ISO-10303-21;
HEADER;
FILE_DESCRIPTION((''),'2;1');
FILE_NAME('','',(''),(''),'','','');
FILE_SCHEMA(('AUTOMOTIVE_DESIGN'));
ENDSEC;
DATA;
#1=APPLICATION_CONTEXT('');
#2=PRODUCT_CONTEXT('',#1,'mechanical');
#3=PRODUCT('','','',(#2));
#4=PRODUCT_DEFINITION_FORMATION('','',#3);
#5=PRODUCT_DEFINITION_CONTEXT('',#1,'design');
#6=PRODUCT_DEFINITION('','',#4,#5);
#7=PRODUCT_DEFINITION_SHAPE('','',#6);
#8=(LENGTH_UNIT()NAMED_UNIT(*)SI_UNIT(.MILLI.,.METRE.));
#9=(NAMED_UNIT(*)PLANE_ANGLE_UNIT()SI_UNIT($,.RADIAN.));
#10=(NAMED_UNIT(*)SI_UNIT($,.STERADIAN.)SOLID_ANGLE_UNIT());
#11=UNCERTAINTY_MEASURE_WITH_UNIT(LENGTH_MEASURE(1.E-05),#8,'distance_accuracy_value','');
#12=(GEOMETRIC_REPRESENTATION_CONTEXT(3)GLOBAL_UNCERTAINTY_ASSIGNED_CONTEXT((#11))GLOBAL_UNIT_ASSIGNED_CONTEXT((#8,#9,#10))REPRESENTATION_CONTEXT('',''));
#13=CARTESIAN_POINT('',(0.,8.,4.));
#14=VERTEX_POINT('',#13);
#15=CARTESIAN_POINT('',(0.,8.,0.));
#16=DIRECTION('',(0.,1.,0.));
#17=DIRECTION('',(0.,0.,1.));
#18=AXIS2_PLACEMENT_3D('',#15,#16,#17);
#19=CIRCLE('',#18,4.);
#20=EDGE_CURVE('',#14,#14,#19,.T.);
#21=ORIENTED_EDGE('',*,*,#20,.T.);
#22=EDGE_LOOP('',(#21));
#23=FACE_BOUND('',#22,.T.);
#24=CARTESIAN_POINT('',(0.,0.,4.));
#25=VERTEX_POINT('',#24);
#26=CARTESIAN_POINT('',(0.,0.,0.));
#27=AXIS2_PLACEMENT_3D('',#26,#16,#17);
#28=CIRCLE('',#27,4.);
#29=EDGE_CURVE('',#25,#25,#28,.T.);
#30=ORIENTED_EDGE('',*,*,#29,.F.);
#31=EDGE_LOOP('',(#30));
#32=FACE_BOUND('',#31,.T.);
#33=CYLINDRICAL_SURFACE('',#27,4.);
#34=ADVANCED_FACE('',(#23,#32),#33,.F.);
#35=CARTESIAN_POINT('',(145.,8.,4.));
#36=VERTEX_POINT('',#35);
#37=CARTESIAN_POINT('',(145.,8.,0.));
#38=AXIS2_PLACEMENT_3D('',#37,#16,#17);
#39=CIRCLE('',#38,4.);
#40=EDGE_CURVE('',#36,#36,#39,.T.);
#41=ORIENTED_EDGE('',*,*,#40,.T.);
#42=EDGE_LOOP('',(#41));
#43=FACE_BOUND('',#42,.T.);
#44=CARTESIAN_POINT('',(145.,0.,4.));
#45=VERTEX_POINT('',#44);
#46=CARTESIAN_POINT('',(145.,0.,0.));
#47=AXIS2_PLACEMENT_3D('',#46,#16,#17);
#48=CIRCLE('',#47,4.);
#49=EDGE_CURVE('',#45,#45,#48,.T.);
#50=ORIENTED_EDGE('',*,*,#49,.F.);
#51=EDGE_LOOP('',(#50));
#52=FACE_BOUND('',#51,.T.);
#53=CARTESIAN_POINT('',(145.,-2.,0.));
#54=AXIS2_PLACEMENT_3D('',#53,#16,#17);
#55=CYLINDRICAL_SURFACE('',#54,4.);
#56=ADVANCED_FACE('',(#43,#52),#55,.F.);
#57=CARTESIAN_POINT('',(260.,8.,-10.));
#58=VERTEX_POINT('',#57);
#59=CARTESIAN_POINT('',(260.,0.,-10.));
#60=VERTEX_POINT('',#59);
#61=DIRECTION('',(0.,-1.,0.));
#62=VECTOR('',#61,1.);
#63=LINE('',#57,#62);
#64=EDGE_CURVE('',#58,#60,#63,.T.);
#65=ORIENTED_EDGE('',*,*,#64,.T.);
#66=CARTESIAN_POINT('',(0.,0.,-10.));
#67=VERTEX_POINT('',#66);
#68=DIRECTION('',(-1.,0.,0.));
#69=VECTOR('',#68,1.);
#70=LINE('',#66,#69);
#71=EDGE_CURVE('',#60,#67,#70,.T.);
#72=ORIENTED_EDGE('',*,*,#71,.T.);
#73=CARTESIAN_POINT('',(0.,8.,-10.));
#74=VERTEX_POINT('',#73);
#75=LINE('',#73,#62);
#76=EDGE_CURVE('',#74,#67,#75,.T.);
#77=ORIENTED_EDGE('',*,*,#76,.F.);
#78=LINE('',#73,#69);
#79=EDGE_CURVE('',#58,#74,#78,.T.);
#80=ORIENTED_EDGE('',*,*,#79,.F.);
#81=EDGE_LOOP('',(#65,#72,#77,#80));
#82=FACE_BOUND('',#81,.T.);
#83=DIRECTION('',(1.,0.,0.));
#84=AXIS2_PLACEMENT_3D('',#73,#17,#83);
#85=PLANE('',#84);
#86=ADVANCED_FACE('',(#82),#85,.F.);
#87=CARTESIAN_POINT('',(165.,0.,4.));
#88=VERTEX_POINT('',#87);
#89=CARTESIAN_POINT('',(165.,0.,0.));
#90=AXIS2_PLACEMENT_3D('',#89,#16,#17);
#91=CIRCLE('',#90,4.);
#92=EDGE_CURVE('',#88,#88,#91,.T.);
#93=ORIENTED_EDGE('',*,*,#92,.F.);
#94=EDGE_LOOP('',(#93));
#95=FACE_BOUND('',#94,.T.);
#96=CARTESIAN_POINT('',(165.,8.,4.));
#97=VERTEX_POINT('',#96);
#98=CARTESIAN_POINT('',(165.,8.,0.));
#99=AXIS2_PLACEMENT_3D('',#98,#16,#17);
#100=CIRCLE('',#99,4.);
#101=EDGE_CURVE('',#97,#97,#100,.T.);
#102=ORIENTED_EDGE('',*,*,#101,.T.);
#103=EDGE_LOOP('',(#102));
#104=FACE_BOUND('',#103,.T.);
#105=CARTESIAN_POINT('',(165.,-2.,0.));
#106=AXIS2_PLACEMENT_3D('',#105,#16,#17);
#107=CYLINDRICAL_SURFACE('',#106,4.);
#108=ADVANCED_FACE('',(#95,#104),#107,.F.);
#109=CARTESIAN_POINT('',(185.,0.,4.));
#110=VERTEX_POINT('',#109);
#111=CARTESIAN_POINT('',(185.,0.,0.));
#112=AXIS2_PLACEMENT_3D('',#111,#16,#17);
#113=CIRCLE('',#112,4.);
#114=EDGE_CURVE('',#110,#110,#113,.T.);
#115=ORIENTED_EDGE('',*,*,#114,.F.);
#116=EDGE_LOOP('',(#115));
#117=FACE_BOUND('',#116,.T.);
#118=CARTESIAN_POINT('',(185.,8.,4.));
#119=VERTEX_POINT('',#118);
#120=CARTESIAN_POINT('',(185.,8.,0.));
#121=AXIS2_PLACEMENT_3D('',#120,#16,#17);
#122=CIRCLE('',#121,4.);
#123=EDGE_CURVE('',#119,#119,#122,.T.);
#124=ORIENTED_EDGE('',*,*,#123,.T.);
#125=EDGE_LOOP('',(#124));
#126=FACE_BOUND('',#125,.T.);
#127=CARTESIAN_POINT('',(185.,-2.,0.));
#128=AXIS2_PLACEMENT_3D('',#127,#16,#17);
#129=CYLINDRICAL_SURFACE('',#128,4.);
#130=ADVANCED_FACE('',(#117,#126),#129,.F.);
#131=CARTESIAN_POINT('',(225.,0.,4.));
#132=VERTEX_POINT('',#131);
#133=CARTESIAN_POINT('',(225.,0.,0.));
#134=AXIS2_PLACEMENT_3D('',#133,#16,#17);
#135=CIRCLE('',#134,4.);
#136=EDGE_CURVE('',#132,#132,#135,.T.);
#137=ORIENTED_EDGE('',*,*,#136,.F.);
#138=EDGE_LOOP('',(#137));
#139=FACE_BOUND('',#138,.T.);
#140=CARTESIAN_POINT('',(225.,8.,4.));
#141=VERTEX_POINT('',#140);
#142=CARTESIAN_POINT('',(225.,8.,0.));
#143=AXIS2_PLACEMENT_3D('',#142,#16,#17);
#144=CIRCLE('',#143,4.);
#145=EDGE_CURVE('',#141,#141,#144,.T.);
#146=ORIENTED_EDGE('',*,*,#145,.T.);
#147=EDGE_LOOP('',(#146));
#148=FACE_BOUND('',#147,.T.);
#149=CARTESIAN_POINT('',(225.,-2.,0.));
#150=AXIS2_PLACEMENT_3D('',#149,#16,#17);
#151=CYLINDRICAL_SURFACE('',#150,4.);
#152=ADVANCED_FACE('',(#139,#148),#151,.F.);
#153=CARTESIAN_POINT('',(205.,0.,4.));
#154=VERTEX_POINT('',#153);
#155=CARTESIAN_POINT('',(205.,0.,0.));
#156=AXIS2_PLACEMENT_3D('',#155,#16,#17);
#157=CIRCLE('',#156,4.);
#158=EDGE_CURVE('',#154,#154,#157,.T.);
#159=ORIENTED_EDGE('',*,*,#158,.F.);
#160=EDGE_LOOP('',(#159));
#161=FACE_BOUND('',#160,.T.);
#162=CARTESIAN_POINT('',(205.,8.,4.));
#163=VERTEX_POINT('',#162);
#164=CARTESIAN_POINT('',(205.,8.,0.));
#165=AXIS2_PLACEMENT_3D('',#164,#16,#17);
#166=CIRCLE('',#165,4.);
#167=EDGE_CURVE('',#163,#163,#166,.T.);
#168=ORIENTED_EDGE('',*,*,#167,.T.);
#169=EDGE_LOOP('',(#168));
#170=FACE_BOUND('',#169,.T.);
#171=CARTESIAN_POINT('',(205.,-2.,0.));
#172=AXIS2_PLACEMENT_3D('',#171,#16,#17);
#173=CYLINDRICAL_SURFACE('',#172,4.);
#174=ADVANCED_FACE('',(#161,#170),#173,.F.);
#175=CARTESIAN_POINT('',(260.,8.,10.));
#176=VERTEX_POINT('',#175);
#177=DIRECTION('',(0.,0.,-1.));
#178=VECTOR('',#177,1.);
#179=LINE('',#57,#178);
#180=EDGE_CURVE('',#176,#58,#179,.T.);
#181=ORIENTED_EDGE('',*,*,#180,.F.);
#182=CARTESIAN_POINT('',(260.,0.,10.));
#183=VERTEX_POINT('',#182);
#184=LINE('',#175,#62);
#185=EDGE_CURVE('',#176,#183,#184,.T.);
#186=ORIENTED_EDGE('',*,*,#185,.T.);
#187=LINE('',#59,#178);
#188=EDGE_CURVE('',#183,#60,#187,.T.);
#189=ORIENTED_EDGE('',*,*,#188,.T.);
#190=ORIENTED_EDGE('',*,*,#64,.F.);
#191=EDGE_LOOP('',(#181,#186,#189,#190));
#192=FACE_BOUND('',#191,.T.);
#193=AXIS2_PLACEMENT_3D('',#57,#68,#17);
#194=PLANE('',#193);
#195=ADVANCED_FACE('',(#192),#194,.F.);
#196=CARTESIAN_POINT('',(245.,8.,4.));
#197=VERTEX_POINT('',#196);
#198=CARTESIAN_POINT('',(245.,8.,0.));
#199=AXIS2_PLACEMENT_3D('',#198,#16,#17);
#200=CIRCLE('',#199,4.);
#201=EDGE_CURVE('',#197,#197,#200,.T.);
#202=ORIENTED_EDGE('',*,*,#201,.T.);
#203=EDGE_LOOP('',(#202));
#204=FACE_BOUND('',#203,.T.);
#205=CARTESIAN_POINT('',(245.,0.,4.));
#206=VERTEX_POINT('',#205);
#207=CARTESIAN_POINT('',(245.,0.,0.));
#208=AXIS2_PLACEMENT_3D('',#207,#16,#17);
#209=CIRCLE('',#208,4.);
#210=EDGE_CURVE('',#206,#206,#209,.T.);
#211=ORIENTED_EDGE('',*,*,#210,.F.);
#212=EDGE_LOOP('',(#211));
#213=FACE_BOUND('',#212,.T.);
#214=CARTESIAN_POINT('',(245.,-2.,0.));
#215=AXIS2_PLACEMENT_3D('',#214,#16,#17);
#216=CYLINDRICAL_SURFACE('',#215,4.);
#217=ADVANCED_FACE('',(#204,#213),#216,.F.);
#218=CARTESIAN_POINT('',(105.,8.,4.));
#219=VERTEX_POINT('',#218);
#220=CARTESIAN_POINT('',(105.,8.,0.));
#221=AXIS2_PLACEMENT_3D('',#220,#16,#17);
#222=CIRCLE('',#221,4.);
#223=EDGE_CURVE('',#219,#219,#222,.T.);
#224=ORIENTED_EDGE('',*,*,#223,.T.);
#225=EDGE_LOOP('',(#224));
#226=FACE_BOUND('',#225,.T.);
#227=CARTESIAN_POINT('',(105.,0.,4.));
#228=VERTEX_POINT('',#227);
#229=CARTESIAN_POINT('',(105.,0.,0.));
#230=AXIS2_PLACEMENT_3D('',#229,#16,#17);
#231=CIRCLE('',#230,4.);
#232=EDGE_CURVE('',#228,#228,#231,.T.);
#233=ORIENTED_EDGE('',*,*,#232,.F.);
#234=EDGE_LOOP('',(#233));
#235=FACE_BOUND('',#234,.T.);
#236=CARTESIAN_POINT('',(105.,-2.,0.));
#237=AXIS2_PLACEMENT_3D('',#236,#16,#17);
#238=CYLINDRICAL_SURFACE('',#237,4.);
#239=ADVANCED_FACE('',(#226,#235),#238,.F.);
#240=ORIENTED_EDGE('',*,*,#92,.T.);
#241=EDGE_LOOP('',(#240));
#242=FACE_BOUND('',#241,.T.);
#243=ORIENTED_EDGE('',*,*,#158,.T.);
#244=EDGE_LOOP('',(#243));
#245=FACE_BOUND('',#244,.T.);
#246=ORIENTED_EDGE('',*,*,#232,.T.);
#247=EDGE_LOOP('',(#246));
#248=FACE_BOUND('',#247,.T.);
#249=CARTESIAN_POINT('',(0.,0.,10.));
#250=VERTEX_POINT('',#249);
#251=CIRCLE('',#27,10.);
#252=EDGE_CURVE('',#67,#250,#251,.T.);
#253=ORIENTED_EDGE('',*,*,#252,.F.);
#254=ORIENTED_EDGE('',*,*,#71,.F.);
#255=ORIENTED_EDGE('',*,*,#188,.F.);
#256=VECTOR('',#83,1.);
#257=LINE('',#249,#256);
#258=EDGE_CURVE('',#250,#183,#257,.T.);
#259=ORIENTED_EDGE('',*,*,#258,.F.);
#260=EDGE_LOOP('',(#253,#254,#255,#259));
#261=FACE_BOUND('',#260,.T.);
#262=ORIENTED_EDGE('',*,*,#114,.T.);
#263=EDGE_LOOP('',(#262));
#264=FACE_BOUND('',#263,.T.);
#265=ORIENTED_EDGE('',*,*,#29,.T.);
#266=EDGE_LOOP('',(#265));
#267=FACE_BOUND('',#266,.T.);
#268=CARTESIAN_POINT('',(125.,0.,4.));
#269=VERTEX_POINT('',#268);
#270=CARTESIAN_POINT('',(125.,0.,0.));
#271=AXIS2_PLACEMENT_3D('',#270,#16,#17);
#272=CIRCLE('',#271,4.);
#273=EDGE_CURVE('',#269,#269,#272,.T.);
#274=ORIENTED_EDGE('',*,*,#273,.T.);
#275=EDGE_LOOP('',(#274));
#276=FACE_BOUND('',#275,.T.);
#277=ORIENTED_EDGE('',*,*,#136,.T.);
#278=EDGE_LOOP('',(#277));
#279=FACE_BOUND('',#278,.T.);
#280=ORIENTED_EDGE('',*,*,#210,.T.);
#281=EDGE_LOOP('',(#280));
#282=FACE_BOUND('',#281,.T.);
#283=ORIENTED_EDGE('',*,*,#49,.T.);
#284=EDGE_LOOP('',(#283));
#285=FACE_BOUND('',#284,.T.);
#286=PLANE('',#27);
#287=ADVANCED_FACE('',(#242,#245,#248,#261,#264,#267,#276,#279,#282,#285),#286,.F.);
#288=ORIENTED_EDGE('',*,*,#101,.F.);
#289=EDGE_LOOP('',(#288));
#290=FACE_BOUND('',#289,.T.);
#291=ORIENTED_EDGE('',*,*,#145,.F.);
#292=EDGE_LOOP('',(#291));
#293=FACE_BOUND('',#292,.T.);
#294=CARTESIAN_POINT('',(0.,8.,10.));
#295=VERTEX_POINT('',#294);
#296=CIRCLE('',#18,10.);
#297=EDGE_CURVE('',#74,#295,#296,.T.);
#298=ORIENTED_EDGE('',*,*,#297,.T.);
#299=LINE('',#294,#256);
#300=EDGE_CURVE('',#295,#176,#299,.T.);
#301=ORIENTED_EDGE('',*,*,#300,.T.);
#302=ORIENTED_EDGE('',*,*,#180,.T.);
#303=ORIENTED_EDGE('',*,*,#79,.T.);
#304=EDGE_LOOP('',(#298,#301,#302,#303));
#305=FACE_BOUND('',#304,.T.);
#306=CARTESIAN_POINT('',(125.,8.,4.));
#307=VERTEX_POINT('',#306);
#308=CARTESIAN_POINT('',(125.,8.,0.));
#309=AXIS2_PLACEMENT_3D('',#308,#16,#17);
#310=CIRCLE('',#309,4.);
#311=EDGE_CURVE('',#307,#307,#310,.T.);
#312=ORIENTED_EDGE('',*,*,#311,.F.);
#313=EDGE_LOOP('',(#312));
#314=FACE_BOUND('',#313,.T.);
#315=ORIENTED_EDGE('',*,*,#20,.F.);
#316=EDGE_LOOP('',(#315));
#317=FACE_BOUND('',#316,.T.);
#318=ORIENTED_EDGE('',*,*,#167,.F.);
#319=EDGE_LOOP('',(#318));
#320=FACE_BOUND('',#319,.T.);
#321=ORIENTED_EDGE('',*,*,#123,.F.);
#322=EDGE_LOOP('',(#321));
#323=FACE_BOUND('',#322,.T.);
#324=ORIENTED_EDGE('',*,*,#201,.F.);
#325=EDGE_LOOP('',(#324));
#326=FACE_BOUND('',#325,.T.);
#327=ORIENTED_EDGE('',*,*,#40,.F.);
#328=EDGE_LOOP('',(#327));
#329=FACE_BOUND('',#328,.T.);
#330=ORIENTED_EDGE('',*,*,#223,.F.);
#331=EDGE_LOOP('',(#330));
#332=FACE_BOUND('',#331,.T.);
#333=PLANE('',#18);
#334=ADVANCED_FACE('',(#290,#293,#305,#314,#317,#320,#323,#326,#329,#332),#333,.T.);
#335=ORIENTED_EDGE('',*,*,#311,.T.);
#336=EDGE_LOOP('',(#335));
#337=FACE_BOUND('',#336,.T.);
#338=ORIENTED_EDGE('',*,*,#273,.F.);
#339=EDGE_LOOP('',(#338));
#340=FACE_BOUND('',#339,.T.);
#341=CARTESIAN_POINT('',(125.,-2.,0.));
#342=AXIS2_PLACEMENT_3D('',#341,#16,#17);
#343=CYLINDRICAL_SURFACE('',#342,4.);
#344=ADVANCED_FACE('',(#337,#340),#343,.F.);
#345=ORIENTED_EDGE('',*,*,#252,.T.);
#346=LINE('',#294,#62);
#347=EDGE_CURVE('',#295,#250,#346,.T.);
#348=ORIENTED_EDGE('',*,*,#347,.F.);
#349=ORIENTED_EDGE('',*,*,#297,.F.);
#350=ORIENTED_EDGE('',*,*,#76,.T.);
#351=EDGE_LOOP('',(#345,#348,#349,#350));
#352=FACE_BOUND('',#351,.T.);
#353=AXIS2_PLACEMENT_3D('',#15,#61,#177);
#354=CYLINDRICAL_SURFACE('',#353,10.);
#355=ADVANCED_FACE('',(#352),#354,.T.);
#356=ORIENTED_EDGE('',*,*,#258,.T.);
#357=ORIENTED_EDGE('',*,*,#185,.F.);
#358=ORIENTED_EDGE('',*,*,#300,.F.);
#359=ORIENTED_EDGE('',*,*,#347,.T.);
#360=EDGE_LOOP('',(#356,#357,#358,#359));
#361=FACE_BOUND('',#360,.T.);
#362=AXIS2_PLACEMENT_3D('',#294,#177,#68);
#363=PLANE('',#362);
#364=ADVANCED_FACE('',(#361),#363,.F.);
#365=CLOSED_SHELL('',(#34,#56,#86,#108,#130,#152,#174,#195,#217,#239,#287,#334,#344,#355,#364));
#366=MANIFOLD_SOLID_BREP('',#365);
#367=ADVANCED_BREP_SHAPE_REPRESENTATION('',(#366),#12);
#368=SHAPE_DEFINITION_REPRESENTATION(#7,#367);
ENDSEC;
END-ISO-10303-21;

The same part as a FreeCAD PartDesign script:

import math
import FreeCAD as App
import Part
import Sketcher
from FreeCAD import Vector
Q = App.Units.Quantity

doc = App.newDocument("Part")
body = doc.addObject("PartDesign::Body", "Body")

sketch1 = body.newObject("Sketcher::SketchObject", "Sketch")
sketch1.AttachmentSupport = (doc.getObject("XZ_Plane"), [""])
sketch1.MapMode = "FlatFace"
sketch1.addGeometry(Part.LineSegment(Vector(260, -10, 0), Vector(0, -10, 0)), False)
sketch1.addGeometry(Part.ArcOfCircle(Part.Circle(Vector(0, 0, 0), Vector(0, 0, 1), 10), math.radians(90), math.radians(270)), False)
sketch1.addGeometry(Part.LineSegment(Vector(0, 10, 0), Vector(260, 10, 0)), False)
sketch1.addGeometry(Part.LineSegment(Vector(260, 10, 0), Vector(260, -10, 0)), False)
sketch1.addConstraint(Sketcher.Constraint("Tangent", 0, 2, 1, 2))
sketch1.addConstraint(Sketcher.Constraint("Tangent", 1, 1, 2, 1))
sketch1.addConstraint(Sketcher.Constraint("Coincident", 2, 2, 3, 1))
sketch1.addConstraint(Sketcher.Constraint("Coincident", 3, 2, 0, 1))
sketch1.addConstraint(Sketcher.Constraint("Horizontal", 0))
sketch1.addConstraint(Sketcher.Constraint("Horizontal", 2))
sketch1.addConstraint(Sketcher.Constraint("Vertical", 3))
sketch1.addConstraint(Sketcher.Constraint("Coincident", 1, 3, -1, 1))
sketch1.addConstraint(Sketcher.Constraint("Radius", 1, Q("10 mm")))
sketch1.addConstraint(Sketcher.Constraint("DistanceX", 0, 2, 0, 1, Q("260 mm")))
pad1 = body.newObject("PartDesign::Pad", "Pad")
pad1.Profile = sketch1
pad1.Length = 8
pad1.Reversed = True

sketch2 = body.newObject("Sketcher::SketchObject", "Sketch001")
sketch2.AttachmentSupport = (doc.getObject("XZ_Plane"), [""])
sketch2.MapMode = "FlatFace"
sketch2.AttachmentOffset = App.Placement(Vector(0, 0, -8), App.Rotation())
sketch2.addGeometry(Part.Circle(Vector(0, 0, 0), Vector(0, 0, 1), 4), False)
sketch2.addConstraint(Sketcher.Constraint("Coincident", 0, 3, -1, 1))
sketch2.addConstraint(Sketcher.Constraint("Diameter", 0, Q("8 mm")))
pocket1 = body.newObject("PartDesign::Pocket", "Pocket")
pocket1.Profile = sketch2
pocket1.Length = 8
pocket1.Reversed = True

sketch3 = body.newObject("Sketcher::SketchObject", "Sketch002")
sketch3.AttachmentSupport = (doc.getObject("XZ_Plane"), [""])
sketch3.MapMode = "FlatFace"
sketch3.AttachmentOffset = App.Placement(Vector(0, 0, -8), App.Rotation())
sketch3.addGeometry(Part.Circle(Vector(245, 0, 0), Vector(0, 0, 1), 4), False)
sketch3.addConstraint(Sketcher.Constraint("PointOnObject", 0, 3, -1))
sketch3.addConstraint(Sketcher.Constraint("Diameter", 0, Q("8 mm")))
sketch3.addConstraint(Sketcher.Constraint("DistanceX", -1, 1, 0, 3, Q("245 mm")))
pocket2 = body.newObject("PartDesign::Pocket", "Pocket001")
pocket2.Profile = sketch3
pocket2.Length = 10
pocket2.Reversed = True
doc.recompute()

linearpattern = body.newObject("PartDesign::LinearPattern", "LinearPattern")
linearpattern.Originals = [pocket2]
linearpattern.Direction = (doc.getObject("X_Axis"), [""])
linearpattern.Mode = "offset"
linearpattern.Offset = 20
linearpattern.Occurrences = 8
linearpattern.Reversed = True
body.Tip = linearpattern

doc.recompute()
